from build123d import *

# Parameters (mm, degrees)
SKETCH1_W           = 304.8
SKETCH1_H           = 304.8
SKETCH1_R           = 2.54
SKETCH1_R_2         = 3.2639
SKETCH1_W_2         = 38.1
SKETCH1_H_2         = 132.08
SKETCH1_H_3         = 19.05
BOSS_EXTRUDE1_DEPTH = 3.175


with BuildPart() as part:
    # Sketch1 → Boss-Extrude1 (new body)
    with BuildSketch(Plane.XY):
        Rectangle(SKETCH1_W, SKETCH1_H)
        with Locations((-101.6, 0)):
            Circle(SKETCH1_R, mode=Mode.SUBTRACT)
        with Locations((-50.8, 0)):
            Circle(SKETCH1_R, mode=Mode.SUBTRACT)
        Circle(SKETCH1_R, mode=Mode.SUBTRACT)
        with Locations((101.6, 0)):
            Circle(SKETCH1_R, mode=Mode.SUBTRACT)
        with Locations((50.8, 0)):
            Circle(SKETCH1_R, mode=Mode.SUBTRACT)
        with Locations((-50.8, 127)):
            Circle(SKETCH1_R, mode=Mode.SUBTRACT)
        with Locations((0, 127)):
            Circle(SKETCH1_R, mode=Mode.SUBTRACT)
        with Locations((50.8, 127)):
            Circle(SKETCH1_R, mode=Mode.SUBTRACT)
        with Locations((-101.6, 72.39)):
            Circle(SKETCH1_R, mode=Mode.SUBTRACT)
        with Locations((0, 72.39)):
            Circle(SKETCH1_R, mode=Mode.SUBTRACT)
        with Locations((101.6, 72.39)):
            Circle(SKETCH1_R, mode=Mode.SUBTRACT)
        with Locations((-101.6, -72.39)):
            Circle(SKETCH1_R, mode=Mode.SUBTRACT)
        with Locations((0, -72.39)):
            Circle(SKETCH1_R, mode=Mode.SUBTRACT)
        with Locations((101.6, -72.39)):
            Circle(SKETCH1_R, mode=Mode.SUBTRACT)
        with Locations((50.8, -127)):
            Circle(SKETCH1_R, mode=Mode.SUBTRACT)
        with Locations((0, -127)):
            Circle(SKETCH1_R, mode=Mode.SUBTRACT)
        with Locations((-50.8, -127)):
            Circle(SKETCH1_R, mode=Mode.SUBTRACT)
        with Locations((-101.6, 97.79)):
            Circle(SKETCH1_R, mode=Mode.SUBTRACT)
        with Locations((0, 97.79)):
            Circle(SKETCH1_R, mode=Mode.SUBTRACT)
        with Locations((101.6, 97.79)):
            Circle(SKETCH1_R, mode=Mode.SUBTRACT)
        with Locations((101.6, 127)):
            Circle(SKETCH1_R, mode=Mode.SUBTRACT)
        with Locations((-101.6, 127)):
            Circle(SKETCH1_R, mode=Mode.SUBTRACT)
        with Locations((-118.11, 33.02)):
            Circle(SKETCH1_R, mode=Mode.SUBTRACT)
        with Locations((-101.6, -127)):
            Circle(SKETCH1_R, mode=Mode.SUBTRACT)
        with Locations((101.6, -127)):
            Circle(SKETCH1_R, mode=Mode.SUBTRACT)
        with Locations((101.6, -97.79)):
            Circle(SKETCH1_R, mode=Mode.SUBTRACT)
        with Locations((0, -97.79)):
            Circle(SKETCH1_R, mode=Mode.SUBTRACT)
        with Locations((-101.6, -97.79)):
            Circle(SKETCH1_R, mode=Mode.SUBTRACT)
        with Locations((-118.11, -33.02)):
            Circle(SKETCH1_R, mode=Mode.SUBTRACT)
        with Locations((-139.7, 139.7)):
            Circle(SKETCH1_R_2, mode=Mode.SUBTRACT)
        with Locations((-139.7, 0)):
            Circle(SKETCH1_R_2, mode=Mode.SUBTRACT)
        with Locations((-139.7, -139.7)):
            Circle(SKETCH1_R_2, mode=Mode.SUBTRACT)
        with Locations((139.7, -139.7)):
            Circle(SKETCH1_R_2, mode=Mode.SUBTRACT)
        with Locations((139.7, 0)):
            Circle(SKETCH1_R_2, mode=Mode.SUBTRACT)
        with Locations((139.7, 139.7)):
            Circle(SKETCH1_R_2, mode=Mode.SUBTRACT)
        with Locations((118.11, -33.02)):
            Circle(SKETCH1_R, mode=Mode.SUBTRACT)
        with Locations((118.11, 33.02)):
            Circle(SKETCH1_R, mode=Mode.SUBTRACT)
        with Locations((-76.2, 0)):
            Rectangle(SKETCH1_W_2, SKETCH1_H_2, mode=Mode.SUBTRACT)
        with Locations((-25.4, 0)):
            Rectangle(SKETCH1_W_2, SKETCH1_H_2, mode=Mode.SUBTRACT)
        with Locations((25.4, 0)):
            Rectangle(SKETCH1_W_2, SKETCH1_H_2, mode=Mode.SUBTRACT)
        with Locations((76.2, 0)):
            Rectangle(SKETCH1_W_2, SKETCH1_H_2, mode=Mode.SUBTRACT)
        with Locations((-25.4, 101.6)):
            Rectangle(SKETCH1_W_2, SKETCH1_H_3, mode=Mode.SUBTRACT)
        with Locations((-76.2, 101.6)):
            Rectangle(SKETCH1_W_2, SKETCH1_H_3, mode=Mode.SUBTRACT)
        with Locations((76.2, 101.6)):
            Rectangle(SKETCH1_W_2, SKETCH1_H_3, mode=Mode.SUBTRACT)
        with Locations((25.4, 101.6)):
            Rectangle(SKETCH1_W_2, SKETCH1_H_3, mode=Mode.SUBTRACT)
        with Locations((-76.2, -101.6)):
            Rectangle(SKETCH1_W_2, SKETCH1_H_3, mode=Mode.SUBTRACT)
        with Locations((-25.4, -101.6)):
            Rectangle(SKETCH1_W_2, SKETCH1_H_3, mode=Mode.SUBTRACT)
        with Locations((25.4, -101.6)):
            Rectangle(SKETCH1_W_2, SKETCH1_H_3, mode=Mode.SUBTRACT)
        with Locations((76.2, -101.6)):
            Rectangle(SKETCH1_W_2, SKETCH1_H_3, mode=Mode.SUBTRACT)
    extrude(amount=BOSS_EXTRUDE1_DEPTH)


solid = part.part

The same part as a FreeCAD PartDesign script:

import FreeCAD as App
import Part
import Sketcher
Q = App.Units.Quantity

doc = App.newDocument("Part")
params = doc.addObject("Spreadsheet::Sheet", "Params")
for row, (alias, value) in enumerate([
    ("sketch1_diameter", "0.2 in"),
    ("sketch1_width", "12 in"),
    ("sketch1_diameter2", "0.257 in"),
    ("sketch1_width2", "1.5 in"),
    ("sketch1_height", "5.2 in"),
    ("pad1_length", "0.125 in"),
], start=1):
    params.set(f"A{row}", alias)
    params.set(f"B{row}", "=" + value)
    params.setAlias(f"B{row}", alias)

body = doc.addObject("PartDesign::Body", "Body")

# Sketch on XY plane
sketch1 = doc.addObject("Sketcher::SketchObject", "Sketch")
body.addObject(sketch1)
sketch1.AttachmentSupport = (doc.XY_Plane, [""])
sketch1.MapMode = "FlatFace"
sketch1.addGeometry([
    Part.LineSegment(App.Vector(-152.4, 152.4, 0), App.Vector(-152.4, -152.4, 0)),  # 0
    Part.LineSegment(App.Vector(-152.4, -152.4, 0), App.Vector(152.4, -152.4, 0)),  # 1
    Part.LineSegment(App.Vector(152.4, -152.4, 0), App.Vector(152.4, 152.4, 0)),  # 2
    Part.LineSegment(App.Vector(152.4, 152.4, 0), App.Vector(-152.4, 152.4, 0)),  # 3
    Part.Circle(App.Vector(-139.7, -139.7, 0), App.Vector(0, 0, 1), 3.3),  # 4
    Part.Circle(App.Vector(-101.6, -127, 0), App.Vector(0, 0, 1), 2.5),  # 5
    Part.Circle(App.Vector(-101.6, -97.8, 0), App.Vector(0, 0, 1), 2.5),  # 6
    Part.LineSegment(App.Vector(-57.1, -111.1, 0), App.Vector(-95.2, -111.1, 0)),  # 7
    Part.LineSegment(App.Vector(-95.2, -111.1, 0), App.Vector(-95.2, -92.1, 0)),  # 8
    Part.LineSegment(App.Vector(-95.2, -92.1, 0), App.Vector(-57.1, -92.1, 0)),  # 9
    Part.LineSegment(App.Vector(-57.1, -92.1, 0), App.Vector(-57.1, -111.1, 0)),  # 10
    Part.Circle(App.Vector(-101.6, -72.4, 0), App.Vector(0, 0, 1), 2.5),  # 11
    Part.Circle(App.Vector(-50.8, -127, 0), App.Vector(0, 0, 1), 2.5),  # 12
    Part.LineSegment(App.Vector(-6.3, -111.1, 0), App.Vector(-44.5, -111.1, 0)),  # 13
    Part.LineSegment(App.Vector(-44.5, -111.1, 0), App.Vector(-44.5, -92.1, 0)),  # 14
    Part.LineSegment(App.Vector(-44.5, -92.1, 0), App.Vector(-6.3, -92.1, 0)),  # 15
    Part.LineSegment(App.Vector(-6.3, -92.1, 0), App.Vector(-6.3, -111.1, 0)),  # 16
    Part.Circle(App.Vector(-118.1, -33, 0), App.Vector(0, 0, 1), 2.5),  # 17
    Part.Circle(App.Vector(0, -127, 0), App.Vector(0, 0, 1), 2.5),  # 18
    Part.Circle(App.Vector(50.8, -127, 0), App.Vector(0, 0, 1), 2.5),  # 19
    Part.Circle(App.Vector(0, -97.8, 0), App.Vector(0, 0, 1), 2.5),  # 20
    Part.LineSegment(App.Vector(44.5, -111.1, 0), App.Vector(6.3, -111.1, 0)),  # 21
    Part.LineSegment(App.Vector(6.3, -111.1, 0), App.Vector(6.3, -92.1, 0)),  # 22
    Part.LineSegment(App.Vector(6.3, -92.1, 0), App.Vector(44.5, -92.1, 0)),  # 23
    Part.LineSegment(App.Vector(44.5, -92.1, 0), App.Vector(44.5, -111.1, 0)),  # 24
    Part.Circle(App.Vector(0, -72.4, 0), App.Vector(0, 0, 1), 2.5),  # 25
    Part.Circle(App.Vector(101.6, -127, 0), App.Vector(0, 0, 1), 2.5),  # 26
    Part.Circle(App.Vector(139.7, -139.7, 0), App.Vector(0, 0, 1), 3.3),  # 27
    Part.LineSegment(App.Vector(95.2, -111.1, 0), App.Vector(57.1, -111.1, 0)),  # 28
    Part.LineSegment(App.Vector(57.1, -111.1, 0), App.Vector(57.1, -92.1, 0)),  # 29
    Part.LineSegment(App.Vector(57.1, -92.1, 0), App.Vector(95.2, -92.1, 0)),  # 30
    Part.LineSegment(App.Vector(95.2, -92.1, 0), App.Vector(95.2, -111.1, 0)),  # 31
    Part.Circle(App.Vector(101.6, -97.8, 0), App.Vector(0, 0, 1), 2.5),  # 32
    Part.Circle(App.Vector(101.6, -72.4, 0), App.Vector(0, 0, 1), 2.5),  # 33
    Part.Circle(App.Vector(118.1, -33, 0), App.Vector(0, 0, 1), 2.5),  # 34
    Part.Circle(App.Vector(-139.7, 0, 0), App.Vector(0, 0, 1), 3.3),  # 35
    Part.Circle(App.Vector(-118.1, 33, 0), App.Vector(0, 0, 1), 2.5),  # 36
    Part.Circle(App.Vector(-101.6, 0, 0), App.Vector(0, 0, 1), 2.5),  # 37
    Part.LineSegment(App.Vector(-57.1, -66, 0), App.Vector(-95.2, -66, 0)),  # 38
    Part.LineSegment(App.Vector(-95.2, -66, 0), App.Vector(-95.2, 66, 0)),  # 39
    Part.LineSegment(App.Vector(-95.2, 66, 0), App.Vector(-57.1, 66, 0)),  # 40
    Part.LineSegment(App.Vector(-57.1, 66, 0), App.Vector(-57.1, -66, 0)),  # 41
    Part.Circle(App.Vector(-50.8, 0, 0), App.Vector(0, 0, 1), 2.5),  # 42
    Part.LineSegment(App.Vector(-6.3, -66, 0), App.Vector(-44.5, -66, 0)),  # 43
    Part.LineSegment(App.Vector(-44.5, -66, 0), App.Vector(-44.5, 66, 0)),  # 44
    Part.LineSegment(App.Vector(-44.5, 66, 0), App.Vector(-6.3, 66, 0)),  # 45
    Part.LineSegment(App.Vector(-6.3, 66, 0), App.Vector(-6.3, -66, 0)),  # 46
    Part.Circle(App.Vector(-101.6, 72.4, 0), App.Vector(0, 0, 1), 2.5),  # 47
    Part.Circle(App.Vector(-101.6, 97.8, 0), App.Vector(0, 0, 1), 2.5),  # 48
    Part.LineSegment(App.Vector(-57.1, 92.1, 0), App.Vector(-95.2, 92.1, 0)),  # 49
    Part.LineSegment(App.Vector(-95.2, 92.1, 0), App.Vector(-95.2, 111.1, 0)),  # 50
    Part.LineSegment(App.Vector(-95.2, 111.1, 0), App.Vector(-57.1, 111.1, 0)),  # 51
    Part.LineSegment(App.Vector(-57.1, 111.1, 0), App.Vector(-57.1, 92.1, 0)),  # 52
    Part.Circle(App.Vector(-139.7, 139.7, 0), App.Vector(0, 0, 1), 3.3),  # 53
    Part.Circle(App.Vector(-101.6, 127, 0), App.Vector(0, 0, 1), 2.5),  # 54
    Part.LineSegment(App.Vector(-6.3, 92.1, 0), App.Vector(-44.5, 92.1, 0)),  # 55
    Part.LineSegment(App.Vector(-44.5, 92.1, 0), App.Vector(-44.5, 111.1, 0)),  # 56
    Part.LineSegment(App.Vector(-44.5, 111.1, 0), App.Vector(-6.3, 111.1, 0)),  # 57
    Part.LineSegment(App.Vector(-6.3, 111.1, 0), App.Vector(-6.3, 92.1, 0)),  # 58
    Part.Circle(App.Vector(-50.8, 127, 0), App.Vector(0, 0, 1), 2.5),  # 59
    Part.Circle(App.Vector(0, 0, 0), App.Vector(0, 0, 1), 2.5),  # 60
    Part.LineSegment(App.Vector(44.5, -66, 0), App.Vector(6.3, -66, 0)),  # 61
    Part.LineSegment(App.Vector(6.3, -66, 0), App.Vector(6.3, 66, 0)),  # 62
    Part.LineSegment(App.Vector(6.3, 66, 0), App.Vector(44.5, 66, 0)),  # 63
    Part.LineSegment(App.Vector(44.5, 66, 0), App.Vector(44.5, -66, 0)),  # 64
    Part.Circle(App.Vector(50.8, 0, 0), App.Vector(0, 0, 1), 2.5),  # 65
    Part.LineSegment(App.Vector(95.2, -66, 0), App.Vector(57.1, -66, 0)),  # 66
    Part.LineSegment(App.Vector(57.1, -66, 0), App.Vector(57.1, 66, 0)),  # 67
    Part.LineSegment(App.Vector(57.1, 66, 0), App.Vector(95.2, 66, 0)),  # 68
    Part.LineSegment(App.Vector(95.2, 66, 0), App.Vector(95.2, -66, 0)),  # 69
    Part.Circle(App.Vector(101.6, 0, 0), App.Vector(0, 0, 1), 2.5),  # 70
    Part.Circle(App.Vector(139.7, 0, 0), App.Vector(0, 0, 1), 3.3),  # 71
    Part.Circle(App.Vector(118.1, 33, 0), App.Vector(0, 0, 1), 2.5),  # 72
    Part.Circle(App.Vector(0, 72.4, 0), App.Vector(0, 0, 1), 2.5),  # 73
    Part.Circle(App.Vector(0, 97.8, 0), App.Vector(0, 0, 1), 2.5),  # 74
    Part.LineSegment(App.Vector(44.5, 92.1, 0), App.Vector(6.3, 92.1, 0)),  # 75
    Part.LineSegment(App.Vector(6.3, 92.1, 0), App.Vector(6.3, 111.1, 0)),  # 76
    Part.LineSegment(App.Vector(6.3, 111.1, 0), App.Vector(44.5, 111.1, 0)),  # 77
    Part.LineSegment(App.Vector(44.5, 111.1, 0), App.Vector(44.5, 92.1, 0)),  # 78
    Part.Circle(App.Vector(0, 127, 0), App.Vector(0, 0, 1), 2.5),  # 79
    Part.Circle(App.Vector(50.8, 127, 0), App.Vector(0, 0, 1), 2.5),  # 80
    Part.Circle(App.Vector(101.6, 72.4, 0), App.Vector(0, 0, 1), 2.5),  # 81
    Part.LineSegment(App.Vector(95.2, 92.1, 0), App.Vector(57.1, 92.1, 0)),  # 82
    Part.LineSegment(App.Vector(57.1, 92.1, 0), App.Vector(57.1, 111.1, 0)),  # 83
    Part.LineSegment(App.Vector(57.1, 111.1, 0), App.Vector(95.2, 111.1, 0)),  # 84
    Part.LineSegment(App.Vector(95.2, 111.1, 0), App.Vector(95.2, 92.1, 0)),  # 85
    Part.Circle(App.Vector(101.6, 97.8, 0), App.Vector(0, 0, 1), 2.5),  # 86
    Part.Circle(App.Vector(101.6, 127, 0), App.Vector(0, 0, 1), 2.5),  # 87
    Part.Circle(App.Vector(139.7, 139.7, 0), App.Vector(0, 0, 1), 3.3),  # 88
], False)
sketch1.addConstraint([
    Sketcher.Constraint("Coincident", 0, 2, 1, 1),
    Sketcher.Constraint("Coincident", 1, 2, 2, 1),
    Sketcher.Constraint("Coincident", 2, 2, 3, 1),
    Sketcher.Constraint("Coincident", 3, 2, 0, 1),
    Sketcher.Constraint("Coincident", 7, 2, 8, 1),
    Sketcher.Constraint("Coincident", 8, 2, 9, 1),
    Sketcher.Constraint("Coincident", 9, 2, 10, 1),
    Sketcher.Constraint("Coincident", 10, 2, 7, 1),
    Sketcher.Constraint("Coincident", 13, 2, 14, 1),
    Sketcher.Constraint("Coincident", 14, 2, 15, 1),
    Sketcher.Constraint("Coincident", 15, 2, 16, 1),
    Sketcher.Constraint("Coincident", 16, 2, 13, 1),
    Sketcher.Constraint("Coincident", 21, 2, 22, 1),
    Sketcher.Constraint("Coincident", 22, 2, 23, 1),
    Sketcher.Constraint("Coincident", 23, 2, 24, 1),
    Sketcher.Constraint("Coincident", 24, 2, 21, 1),
    Sketcher.Constraint("Coincident", 28, 2, 29, 1),
    Sketcher.Constraint("Coincident", 29, 2, 30, 1),
    Sketcher.Constraint("Coincident", 30, 2, 31, 1),
    Sketcher.Constraint("Coincident", 31, 2, 28, 1),
    Sketcher.Constraint("Coincident", 38, 2, 39, 1),
    Sketcher.Constraint("Coincident", 39, 2, 40, 1),
    Sketcher.Constraint("Coincident", 40, 2, 41, 1),
    Sketcher.Constraint("Coincident", 41, 2, 38, 1),
    Sketcher.Constraint("Coincident", 43, 2, 44, 1),
    Sketcher.Constraint("Coincident", 44, 2, 45, 1),
    Sketcher.Constraint("Coincident", 45, 2, 46, 1),
    Sketcher.Constraint("Coincident", 46, 2, 43, 1),
    Sketcher.Constraint("Coincident", 49, 2, 50, 1),
    Sketcher.Constraint("Coincident", 50, 2, 51, 1),
    Sketcher.Constraint("Coincident", 51, 2, 52, 1),
    Sketcher.Constraint("Coincident", 52, 2, 49, 1),
    Sketcher.Constraint("Coincident", 55, 2, 56, 1),
    Sketcher.Constraint("Coincident", 56, 2, 57, 1),
    Sketcher.Constraint("Coincident", 57, 2, 58, 1),
    Sketcher.Constraint("Coincident", 58, 2, 55, 1),
    Sketcher.Constraint("Coincident", 61, 2, 62, 1),
    Sketcher.Constraint("Coincident", 62, 2, 63, 1),
    Sketcher.Constraint("Coincident", 63, 2, 64, 1),
    Sketcher.Constraint("Coincident", 64, 2, 61, 1),
    Sketcher.Constraint("Coincident", 66, 2, 67, 1),
    Sketcher.Constraint("Coincident", 67, 2, 68, 1),
    Sketcher.Constraint("Coincident", 68, 2, 69, 1),
    Sketcher.Constraint("Coincident", 69, 2, 66, 1),
    Sketcher.Constraint("Coincident", 75, 2, 76, 1),
    Sketcher.Constraint("Coincident", 76, 2, 77, 1),
    Sketcher.Constraint("Coincident", 77, 2, 78, 1),
    Sketcher.Constraint("Coincident", 78, 2, 75, 1),
    Sketcher.Constraint("Coincident", 82, 2, 83, 1),
    Sketcher.Constraint("Coincident", 83, 2, 84, 1),
    Sketcher.Constraint("Coincident", 84, 2, 85, 1),
    Sketcher.Constraint("Coincident", 85, 2, 82, 1),
    Sketcher.Constraint("Vertical", 0),
    Sketcher.Constraint("Horizontal", 1),
    Sketcher.Constraint("Vertical", 2),
    Sketcher.Constraint("Horizontal", 3),
    Sketcher.Constraint("Horizontal", 7),
    Sketcher.Constraint("Vertical", 8),
    Sketcher.Constraint("Horizontal", 9),
    Sketcher.Constraint("Vertical", 10),
    Sketcher.Constraint("Horizontal", 13),
    Sketcher.Constraint("Vertical", 14),
    Sketcher.Constraint("Horizontal", 15),
    Sketcher.Constraint("Vertical", 16),
    Sketcher.Constraint("Horizontal", 21),
    Sketcher.Constraint("Vertical", 22),
    Sketcher.Constraint("Horizontal", 23),
    Sketcher.Constraint("Vertical", 24),
    Sketcher.Constraint("Horizontal", 28),
    Sketcher.Constraint("Vertical", 29),
    Sketcher.Constraint("Horizontal", 30),
    Sketcher.Constraint("Vertical", 31),
    Sketcher.Constraint("Horizontal", 38),
    Sketcher.Constraint("Vertical", 39),
    Sketcher.Constraint("Horizontal", 40),
    Sketcher.Constraint("Vertical", 41),
    Sketcher.Constraint("Horizontal", 43),
    Sketcher.Constraint("Vertical", 44),
    Sketcher.Constraint("Horizontal", 45),
    Sketcher.Constraint("Vertical", 46),
    Sketcher.Constraint("Horizontal", 49),
    Sketcher.Constraint("Vertical", 50),
    Sketcher.Constraint("Horizontal", 51),
    Sketcher.Constraint("Vertical", 52),
    Sketcher.Constraint("Horizontal", 55),
    Sketcher.Constraint("Vertical", 56),
    Sketcher.Constraint("Horizontal", 57),
    Sketcher.Constraint("Vertical", 58),
    Sketcher.Constraint("Horizontal", 61),
    Sketcher.Constraint("Vertical", 62),
    Sketcher.Constraint("Horizontal", 63),
    Sketcher.Constraint("Vertical", 64),
    Sketcher.Constraint("Horizontal", 66),
    Sketcher.Constraint("Vertical", 67),
    Sketcher.Constraint("Horizontal", 68),
    Sketcher.Constraint("Vertical", 69),
    Sketcher.Constraint("Horizontal", 75),
    Sketcher.Constraint("Vertical", 76),
    Sketcher.Constraint("Horizontal", 77),
    Sketcher.Constraint("Vertical", 78),
    Sketcher.Constraint("Horizontal", 82),
    Sketcher.Constraint("Vertical", 83),
    Sketcher.Constraint("Horizontal", 84),
    Sketcher.Constraint("Vertical", 85),
    Sketcher.Constraint("Coincident", 60, 3, -1, 1),
    Sketcher.Constraint("Equal", 5, 6),
    Sketcher.Constraint("Equal", 6, 11),
    Sketcher.Constraint("Equal", 11, 12),
    Sketcher.Constraint("Equal", 12, 17),
    Sketcher.Constraint("Equal", 17, 18),
    Sketcher.Constraint("Equal", 18, 19),
    Sketcher.Constraint("Equal", 19, 20),
    Sketcher.Constraint("Equal", 20, 25),
    Sketcher.Constraint("Equal", 25, 26),
    Sketcher.Constraint("Equal", 4, 27),
    Sketcher.Constraint("Equal", 26, 32),
    Sketcher.Constraint("Equal", 32, 33),
    Sketcher.Constraint("Equal", 33, 34),
    Sketcher.Constraint("Equal", 27, 35),
    Sketcher.Constraint("Equal", 34, 36),
    Sketcher.Constraint("Equal", 36, 37),
    Sketcher.Constraint("Equal", 37, 42),
    Sketcher.Constraint("Equal", 42, 47),
    Sketcher.Constraint("Equal", 47, 48),
    Sketcher.Constraint("Equal", 35, 53),
    Sketcher.Constraint("Equal", 48, 54),
    Sketcher.Constraint("Equal", 54, 59),
    Sketcher.Constraint("Equal", 59, 60),
    Sketcher.Constraint("Equal", 60, 65),
    Sketcher.Constraint("Equal", 65, 70),
    Sketcher.Constraint("Equal", 53, 71),
    Sketcher.Constraint("Equal", 70, 72),
    Sketcher.Constraint("Equal", 72, 73),
    Sketcher.Constraint("Equal", 73, 74),
    Sketcher.Constraint("Equal", 74, 79),
    Sketcher.Constraint("Equal", 79, 80),
    Sketcher.Constraint("Equal", 80, 81),
    Sketcher.Constraint("Equal", 81, 86),
    Sketcher.Constraint("Equal", 86, 87),
    Sketcher.Constraint("Equal", 71, 88),
    Sketcher.Constraint("Symmetric", 34, 3, 36, 3, -1, 1),
    Sketcher.Constraint("Symmetric", 33, 3, 47, 3, -1, 1),
    Sketcher.Constraint("Symmetric", 32, 3, 48, 3, -1, 1),
    Sketcher.Constraint("Symmetric", 27, 3, 53, 3, -1, 1),
    Sketcher.Constraint("Symmetric", 26, 3, 54, 3, -1, 1),
    Sketcher.Constraint("Symmetric", 19, 3, 59, 3, -1, 1),
    Sketcher.Constraint("Symmetric", 42, 3, 65, 3, -1, 1),
    Sketcher.Constraint("Symmetric", 37, 3, 70, 3, -1, 1),
    Sketcher.Constraint("Symmetric", 35, 3, 71, 3, -1, 1),
    Sketcher.Constraint("Symmetric", 17, 3, 72, 3, -1, 1),
    Sketcher.Constraint("Symmetric", 25, 3, 73, 3, -1, 1),
    Sketcher.Constraint("Symmetric", 20, 3, 74, 3, -1, 1),
    Sketcher.Constraint("Symmetric", 18, 3, 79, 3, -1, 1),
    Sketcher.Constraint("Symmetric", 12, 3, 80, 3, -1, 1),
    Sketcher.Constraint("Symmetric", 11, 3, 81, 3, -1, 1),
    Sketcher.Constraint("Symmetric", 6, 3, 86, 3, -1, 1),
    Sketcher.Constraint("Symmetric", 5, 3, 87, 3, -1, 1),
    Sketcher.Constraint("Symmetric", 4, 3, 88, 3, -1, 1),
    Sketcher.Constraint("Symmetric", 0, 2, 2, 2, -1, 1),
    Sketcher.Constraint("Symmetric", 30, 2, 49, 2, -1, 1),
    Sketcher.Constraint("Symmetric", 28, 2, 51, 2, -1, 1),
    Sketcher.Constraint("Symmetric", 23, 2, 55, 2, -1, 1),
    Sketcher.Constraint("Symmetric", 21, 2, 57, 2, -1, 1),
    Sketcher.Constraint("Symmetric", 45, 2, 61, 2, -1, 1),
    Sketcher.Constraint("Symmetric", 43, 2, 63, 2, -1, 1),
    Sketcher.Constraint("Symmetric", 40, 2, 66, 2, -1, 1),
    Sketcher.Constraint("Symmetric", 38, 2, 68, 2, -1, 1),
    Sketcher.Constraint("Symmetric", 15, 2, 75, 2, -1, 1),
    Sketcher.Constraint("Symmetric", 13, 2, 77, 2, -1, 1),
    Sketcher.Constraint("Symmetric", 9, 2, 82, 2, -1, 1),
    Sketcher.Constraint("Symmetric", 7, 2, 84, 2, -1, 1),
    Sketcher.Constraint("Symmetric", 12, 3, 19, 3, -2),
    Sketcher.Constraint("Symmetric", 5, 3, 26, 3, -2),
    Sketcher.Constraint("Symmetric", 4, 3, 27, 3, -2),
    Sketcher.Constraint("Symmetric", 6, 3, 32, 3, -2),
    Sketcher.Constraint("Symmetric", 11, 3, 33, 3, -2),
    Sketcher.Constraint("Symmetric", 17, 3, 34, 3, -2),
    Sketcher.Constraint("Symmetric", 16, 2, 21, 2, -2),
    Sketcher.Constraint("Symmetric", 14, 2, 23, 2, -2),
    Sketcher.Constraint("Symmetric", 10, 2, 28, 2, -2),
    Sketcher.Constraint("Symmetric", 8, 2, 30, 2, -2),
    Sketcher.Constraint("PointOnObject", 18, 3, -2),
    Sketcher.Constraint("PointOnObject", 20, 3, -2),
    Sketcher.Constraint("PointOnObject", 25, 3, -2),
    Sketcher.Constraint("PointOnObject", 35, 3, -1),
    Sketcher.Constraint("PointOnObject", 37, 3, -1),
    Sketcher.Constraint("PointOnObject", 42, 3, -1),
    Sketcher.Constraint("Horizontal", 5, 3, 12, 3),
    Sketcher.Constraint("Horizontal", 12, 3, 18, 3),
    Sketcher.Constraint("Horizontal", 6, 3, 20, 3),
    Sketcher.Constraint("Horizontal", 11, 3, 25, 3),
    Sketcher.Constraint("Horizontal", 10, 2, 13, 2),
    Sketcher.Constraint("Horizontal", 9, 2, 14, 2),
    Sketcher.Constraint("Horizontal", 41, 2, 43, 2),
    Sketcher.Constraint("Horizontal", 40, 2, 44, 2),
    Sketcher.Constraint("Horizontal", 46, 2, 61, 2),
    Sketcher.Constraint("Vertical", 5, 3, 6, 3),
    Sketcher.Constraint("Vertical", 6, 3, 11, 3),
    Sketcher.Constraint("Vertical", 4, 3, 35, 3),
    Sketcher.Constraint("Vertical", 11, 3, 37, 3),
    Sketcher.Constraint("Vertical", 12, 3, 42, 3),
    Sketcher.Constraint("Vertical", 8, 2, 38, 2),
    Sketcher.Constraint("Vertical", 10, 2, 40, 2),
    Sketcher.Constraint("Vertical", 14, 2, 43, 2),
    Sketcher.Constraint("Vertical", 16, 2, 45, 2),
    Sketcher.Constraint("Equal", 9, 13),
    Sketcher.Constraint("Equal", 3, 0),
    Sketcher.Constraint("Diameter", 5, Q("0.2 in")),
    Sketcher.Constraint("DistanceX", 1, 1, 1, 2, Q("12 in")),
    Sketcher.Constraint("Diameter", 4, Q("0.257 in")),
    Sketcher.Constraint("DistanceX", 7, 2, 7, 1, Q("1.5 in")),
    Sketcher.Constraint("DistanceY", 39, 1, 39, 2, Q("5.2 in")),
    Sketcher.Constraint("DistanceX", 5, 3, -1, 1, Q("4 in")),
    Sketcher.Constraint("DistanceY", 5, 3, -1, 1, Q("5 in")),
    Sketcher.Constraint("DistanceX", 12, 3, -1, 1, Q("2 in")),
    Sketcher.Constraint("DistanceY", 8, 1, 8, 2, Q("0.75 in")),
    Sketcher.Constraint("DistanceX", 4, 3, -1, 1, Q("5.5 in")),
    Sketcher.Constraint("DistanceY", 4, 3, -1, 1, Q("5.5 in")),
    Sketcher.Constraint("DistanceY", 17, 3, -1, 1, Q("1.3 in")),
    Sketcher.Constraint("DistanceY", 6, 3, -1, 1, Q("3.85 in")),
    Sketcher.Constraint("DistanceY", 11, 3, -1, 1, Q("2.85 in")),
    Sketcher.Constraint("DistanceX", 17, 3, -1, 1, Q("4.65 in")),
    Sketcher.Constraint("DistanceX", 7, 2, -1, 1, Q("3.75 in")),
    Sketcher.Constraint("DistanceX", 13, 2, -1, 1, Q("1.75 in")),
    Sketcher.Constraint("DistanceY", 7, 2, -1, 1, Q("4.375 in")),
])
sketch1.setExpression("Constraints[207]", "Params.sketch1_diameter")
sketch1.setExpression("Constraints[208]", "Params.sketch1_width")
sketch1.setExpression("Constraints[209]", "Params.sketch1_diameter2")
sketch1.setExpression("Constraints[210]", "Params.sketch1_width2")
sketch1.setExpression("Constraints[211]", "Params.sketch1_height")
pad1 = doc.addObject("PartDesign::Pad", "Pad")
body.addObject(pad1)
pad1.Profile = sketch1
pad1.setExpression("Length", "Params.pad1_length")

doc.recompute()
